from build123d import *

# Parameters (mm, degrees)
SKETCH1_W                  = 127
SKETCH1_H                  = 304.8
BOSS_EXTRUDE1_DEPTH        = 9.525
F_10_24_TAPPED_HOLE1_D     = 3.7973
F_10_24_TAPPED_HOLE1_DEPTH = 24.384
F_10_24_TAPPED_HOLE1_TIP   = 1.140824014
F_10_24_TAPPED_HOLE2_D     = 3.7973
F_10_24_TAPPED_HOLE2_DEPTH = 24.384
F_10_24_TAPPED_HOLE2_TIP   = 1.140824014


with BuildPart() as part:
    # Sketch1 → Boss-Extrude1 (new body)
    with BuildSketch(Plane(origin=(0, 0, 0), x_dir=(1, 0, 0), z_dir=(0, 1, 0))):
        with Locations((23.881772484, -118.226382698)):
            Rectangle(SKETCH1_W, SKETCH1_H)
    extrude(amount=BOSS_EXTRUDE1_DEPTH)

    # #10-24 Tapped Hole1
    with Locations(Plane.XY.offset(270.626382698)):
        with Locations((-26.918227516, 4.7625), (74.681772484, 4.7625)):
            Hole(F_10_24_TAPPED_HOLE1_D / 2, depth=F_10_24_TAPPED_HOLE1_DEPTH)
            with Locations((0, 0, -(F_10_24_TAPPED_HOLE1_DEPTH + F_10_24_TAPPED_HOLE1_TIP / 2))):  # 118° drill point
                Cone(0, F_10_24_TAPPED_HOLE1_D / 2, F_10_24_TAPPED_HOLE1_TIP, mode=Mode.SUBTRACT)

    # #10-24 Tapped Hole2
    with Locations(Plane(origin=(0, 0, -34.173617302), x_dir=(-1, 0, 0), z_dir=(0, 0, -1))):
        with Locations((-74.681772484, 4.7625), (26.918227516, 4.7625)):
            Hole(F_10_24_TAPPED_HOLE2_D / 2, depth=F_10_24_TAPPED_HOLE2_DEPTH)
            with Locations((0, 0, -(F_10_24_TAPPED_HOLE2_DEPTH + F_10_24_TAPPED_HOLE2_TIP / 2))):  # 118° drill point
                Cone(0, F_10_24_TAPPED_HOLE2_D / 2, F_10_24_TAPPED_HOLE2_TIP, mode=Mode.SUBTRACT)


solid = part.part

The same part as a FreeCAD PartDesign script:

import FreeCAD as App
import Part
import Sketcher

V = App.Vector
Q = App.Units.Quantity

doc = App.newDocument("Part")
body = doc.addObject("PartDesign::Body", "Body")

sketch1 = doc.addObject("Sketcher::SketchObject", "Sketch")
body.addObject(sketch1)
sketch1.AttachmentSupport = (doc.XZ_Plane, [""])
sketch1.MapMode = "FlatFace"
sketch1.addGeometry(Part.LineSegment(V(-40, -34, 0), V(-40, 271, 0)), False)
sketch1.addGeometry(Part.LineSegment(V(-40, 271, 0), V(87, 271, 0)), False)
sketch1.addGeometry(Part.LineSegment(V(87, 271, 0), V(87, -34, 0)), False)
sketch1.addGeometry(Part.LineSegment(V(87, -34, 0), V(-40, -34, 0)), False)
sketch1.addConstraint(Sketcher.Constraint("Coincident", 0, 2, 1, 1))
sketch1.addConstraint(Sketcher.Constraint("Coincident", 1, 2, 2, 1))
sketch1.addConstraint(Sketcher.Constraint("Coincident", 2, 2, 3, 1))
sketch1.addConstraint(Sketcher.Constraint("Coincident", 3, 2, 0, 1))
sketch1.addConstraint(Sketcher.Constraint("Vertical", 0))
sketch1.addConstraint(Sketcher.Constraint("Horizontal", 1))
sketch1.addConstraint(Sketcher.Constraint("Vertical", 2))
sketch1.addConstraint(Sketcher.Constraint("Horizontal", 3))
sketch1.addConstraint(Sketcher.Constraint("DistanceX", 1, 1, 1, 2, Q("5 in")))
sketch1.addConstraint(Sketcher.Constraint("DistanceY", 0, 1, 0, 2, Q("12 in")))
sketch1.addConstraint(Sketcher.Constraint("DistanceX", 0, 2, -1, 1, 39.618228))
sketch1.addConstraint(Sketcher.Constraint("DistanceY", -1, 1, 0, 2, 270.626383))
pad1 = doc.addObject("PartDesign::Pad", "Pad")
body.addObject(pad1)
pad1.Profile = sketch1
pad1.Length = Q("0.375 in")
pad1.Reversed = True

sketch2 = doc.addObject("Sketcher::SketchObject", "Sketch001")
body.addObject(sketch2)
sketch2.AttachmentSupport = (doc.XY_Plane, [""])
sketch2.MapMode = "FlatFace"
sketch2.AttachmentOffset = App.Placement(V(0, 0, 270.626383), App.Rotation())
sketch2.addGeometry(Part.Circle(V(-26.9, 4.8, 0), V(0, 0, 1), 1.9), False)
sketch2.addGeometry(Part.Circle(V(74.7, 4.8, 0), V(0, 0, 1), 1.9), False)
sketch2.addConstraint(Sketcher.Constraint("Equal", 0, 1))
sketch2.addConstraint(Sketcher.Constraint("Horizontal", 0, 3, 1, 3))
sketch2.addConstraint(Sketcher.Constraint("DistanceX", 0, 3, 1, 3, Q("4 in")))
sketch2.addConstraint(Sketcher.Constraint("Diameter", 0, Q("0.1495 in")))
sketch2.addConstraint(Sketcher.Constraint("DistanceY", -1, 1, 0, 3, Q("0.1875 in")))
sketch2.addConstraint(Sketcher.Constraint("DistanceX", 0, 3, -1, 1, 26.918228))
doc.recompute()
hole = doc.addObject("PartDesign::Hole", "Hole")
body.addObject(hole)
hole.Profile = sketch2
hole.ThreadType = "None"
hole.Diameter = Q("0.1495 in")
hole.DepthType = "Dimension"
hole.Depth = Q("0.96 in")
hole.DrillPoint = "Angled"
hole.DrillPointAngle = 118

sketch3 = doc.addObject("Sketcher::SketchObject", "Sketch002")
body.addObject(sketch3)
sketch3.AttachmentSupport = (doc.XY_Plane, [""])
sketch3.MapMode = "FlatFace"
sketch3.AttachmentOffset = App.Placement(V(0, 0, -34.173617), App.Rotation())
sketch3.addGeometry(Part.Circle(V(74.7, 4.8, 0), V(0, 0, 1), 1.9), False)
sketch3.addGeometry(Part.Circle(V(-26.9, 4.8, 0), V(0, 0, 1), 1.9), False)
sketch3.addConstraint(Sketcher.Constraint("Equal", 0, 1))
sketch3.addConstraint(Sketcher.Constraint("Horizontal", 0, 3, 1, 3))
sketch3.addConstraint(Sketcher.Constraint("DistanceX", 1, 3, 0, 3, Q("4 in")))
sketch3.addConstraint(Sketcher.Constraint("Diameter", 0, Q("0.1495 in")))
sketch3.addConstraint(Sketcher.Constraint("DistanceY", -1, 1, 0, 3, Q("0.1875 in")))
sketch3.addConstraint(Sketcher.Constraint("DistanceX", -1, 1, 0, 3, 74.681772))
doc.recompute()
hole2 = doc.addObject("PartDesign::Hole", "Hole001")
body.addObject(hole2)
hole2.Profile = sketch3
hole2.ThreadType = "None"
hole2.Diameter = Q("0.1495 in")
hole2.DepthType = "Dimension"
hole2.Depth = Q("0.96 in")
hole2.DrillPoint = "Angled"
hole2.DrillPointAngle = 118
hole2.Reversed = True

doc.recompute()
